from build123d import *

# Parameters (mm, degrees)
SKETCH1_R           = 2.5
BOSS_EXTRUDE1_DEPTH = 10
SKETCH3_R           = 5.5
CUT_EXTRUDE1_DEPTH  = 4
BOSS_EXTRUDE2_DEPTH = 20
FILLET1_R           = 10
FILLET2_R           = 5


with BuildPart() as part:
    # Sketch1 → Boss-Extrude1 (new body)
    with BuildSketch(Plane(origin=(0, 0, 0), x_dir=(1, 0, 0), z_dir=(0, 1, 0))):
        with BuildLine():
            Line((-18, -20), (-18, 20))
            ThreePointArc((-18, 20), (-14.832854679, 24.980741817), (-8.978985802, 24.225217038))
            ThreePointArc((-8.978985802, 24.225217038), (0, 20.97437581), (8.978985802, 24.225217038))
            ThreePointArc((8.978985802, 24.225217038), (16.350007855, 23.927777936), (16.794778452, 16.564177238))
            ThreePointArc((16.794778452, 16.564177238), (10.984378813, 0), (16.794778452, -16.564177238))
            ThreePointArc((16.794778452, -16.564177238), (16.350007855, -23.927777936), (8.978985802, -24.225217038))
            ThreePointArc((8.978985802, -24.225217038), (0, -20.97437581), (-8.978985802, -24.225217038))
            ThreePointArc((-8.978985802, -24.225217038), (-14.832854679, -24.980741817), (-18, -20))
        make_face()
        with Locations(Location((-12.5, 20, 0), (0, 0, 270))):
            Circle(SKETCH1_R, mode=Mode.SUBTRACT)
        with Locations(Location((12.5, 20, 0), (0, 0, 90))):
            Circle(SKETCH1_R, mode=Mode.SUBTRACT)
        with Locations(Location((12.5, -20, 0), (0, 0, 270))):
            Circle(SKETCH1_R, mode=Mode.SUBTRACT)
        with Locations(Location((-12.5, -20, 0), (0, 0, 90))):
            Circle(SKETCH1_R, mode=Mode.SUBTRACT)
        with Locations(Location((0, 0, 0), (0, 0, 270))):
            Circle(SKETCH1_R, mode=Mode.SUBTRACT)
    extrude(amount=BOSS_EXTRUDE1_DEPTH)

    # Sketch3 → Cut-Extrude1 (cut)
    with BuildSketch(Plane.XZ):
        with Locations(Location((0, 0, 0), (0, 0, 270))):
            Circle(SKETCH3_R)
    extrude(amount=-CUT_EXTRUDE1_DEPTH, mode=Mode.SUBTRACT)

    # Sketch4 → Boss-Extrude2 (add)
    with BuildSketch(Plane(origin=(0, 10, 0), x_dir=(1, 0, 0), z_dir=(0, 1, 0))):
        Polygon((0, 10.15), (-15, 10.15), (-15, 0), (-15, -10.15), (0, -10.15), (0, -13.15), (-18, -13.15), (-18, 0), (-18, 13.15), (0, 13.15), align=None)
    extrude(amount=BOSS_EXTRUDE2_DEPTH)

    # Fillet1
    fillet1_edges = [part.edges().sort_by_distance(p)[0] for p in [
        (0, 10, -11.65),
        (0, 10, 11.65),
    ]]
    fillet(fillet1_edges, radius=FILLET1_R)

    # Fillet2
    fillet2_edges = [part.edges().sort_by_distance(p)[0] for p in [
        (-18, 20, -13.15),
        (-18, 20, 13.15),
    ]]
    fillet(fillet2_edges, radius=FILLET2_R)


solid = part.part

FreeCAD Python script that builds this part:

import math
import FreeCAD as App
import Part
import Sketcher
Q = App.Units.Quantity


def edges_at(feature, points):
    """Names of the edges that pass closest to the given points."""
    edges = feature.Shape.Edges
    near = lambda p: min(range(len(edges)), key=lambda i: edges[i].distToShape(Part.Vertex(*p))[0])
    return sorted({f"Edge{near(p) + 1}" for p in points})


def add_polygon(sketch, points):
    """Adds a closed chain of lines whose ends are joined by coincident constraints."""
    first, n = sketch.GeometryCount, len(points)
    for a, b in zip(points, points[1:] + points[:1]):
        sketch.addGeometry(Part.LineSegment(App.Vector(*a, 0), App.Vector(*b, 0)), False)
    for i in range(n):
        sketch.addConstraint(Sketcher.Constraint("Coincident", first + i, 2, first + (i + 1) % n, 1))

doc = App.newDocument("Part")
body = doc.addObject("PartDesign::Body", "Body")

sketch1 = body.newObject("Sketcher::SketchObject", "Sketch")
sketch1.AttachmentSupport = (doc.getObject("XZ_Plane"), [""])
sketch1.MapMode = "FlatFace"
sketch1.addGeometry([
    Part.LineSegment(App.Vector(-18, -20, 0), App.Vector(-18, 20, 0)),
    Part.ArcOfCircle(Part.Circle(App.Vector(-12.5, 20, 0), App.Vector(0, 0, 1), 5.5), math.radians(50), math.radians(180)),
    Part.ArcOfCircle(Part.Circle(App.Vector(0, 35, 0), App.Vector(0, 0, 1), 14), math.radians(-130), math.radians(-50)),
    Part.ArcOfCircle(Part.Circle(App.Vector(12.5, 20, 0), App.Vector(0, 0, 1), 5.5), math.radians(-39), math.radians(130)),
    Part.ArcOfCircle(Part.Circle(App.Vector(37.5, 0, 0), App.Vector(0, 0, 1), 26.5), math.radians(141), math.radians(219)),
    Part.ArcOfCircle(Part.Circle(App.Vector(12.5, -20, 0), App.Vector(0, 0, 1), 5.5), math.radians(-130), math.radians(39)),
    Part.ArcOfCircle(Part.Circle(App.Vector(0, -35, 0), App.Vector(0, 0, 1), 14), math.radians(50), math.radians(130)),
    Part.ArcOfCircle(Part.Circle(App.Vector(-12.5, -20, 0), App.Vector(0, 0, 1), 5.5), math.radians(180), math.radians(310)),
    Part.Circle(App.Vector(12.5, 20, 0), App.Vector(0, 0, 1), 2.5),
    Part.Circle(App.Vector(-12.5, 20, 0), App.Vector(0, 0, 1), 2.5),
    Part.Circle(App.Vector(12.5, -20, 0), App.Vector(0, 0, 1), 2.5),
    Part.Circle(App.Vector(0, 0, 0), App.Vector(0, 0, 1), 2.5),
    Part.Circle(App.Vector(-12.5, -20, 0), App.Vector(0, 0, 1), 2.5),
], False)
sketch1.addConstraint([
    Sketcher.Constraint("Tangent", 0, 2, 1, 2),
    Sketcher.Constraint("Tangent", 1, 1, 2, 1),
    Sketcher.Constraint("Tangent", 2, 2, 3, 2),
    Sketcher.Constraint("Tangent", 3, 1, 4, 1),
    Sketcher.Constraint("Tangent", 4, 2, 5, 2),
    Sketcher.Constraint("Tangent", 5, 1, 6, 1),
    Sketcher.Constraint("Tangent", 6, 2, 7, 2),
    Sketcher.Constraint("Tangent", 7, 1, 0, 1),
    Sketcher.Constraint("Vertical", 0),
    Sketcher.Constraint("Coincident", 11, 3, -1, 1),
    Sketcher.Constraint("Coincident", 8, 3, 3, 3),
    Sketcher.Constraint("Coincident", 9, 3, 1, 3),
    Sketcher.Constraint("Coincident", 10, 3, 5, 3),
    Sketcher.Constraint("Coincident", 12, 3, 7, 3),
    Sketcher.Constraint("Equal", 1, 3),
    Sketcher.Constraint("Equal", 3, 5),
    Sketcher.Constraint("Equal", 2, 6),
    Sketcher.Constraint("Equal", 5, 7),
    Sketcher.Constraint("Equal", 8, 9),
    Sketcher.Constraint("Equal", 9, 10),
    Sketcher.Constraint("Equal", 10, 11),
    Sketcher.Constraint("Equal", 11, 12),
    Sketcher.Constraint("Symmetric", 1, 3, 5, 3, -1, 1),
    Sketcher.Constraint("Symmetric", 3, 3, 7, 3, -1, 1),
    Sketcher.Constraint("PointOnObject", 2, 3, -2),
    Sketcher.Constraint("Diameter", 8, Q("5 mm")),
    Sketcher.Constraint("Radius", 1, Q("5.5 mm")),
    Sketcher.Constraint("DistanceY", 0, 1, 0, 2, Q("40 mm")),
    Sketcher.Constraint("DistanceY", -1, 1, 2, 3, Q("35 mm")),
    Sketcher.Constraint("DistanceX", 0, 2, -1, 1, Q("18 mm")),
    Sketcher.Constraint("DistanceX", 3, 3, 4, 3, Q("25 mm")),
])
pad1 = body.newObject("PartDesign::Pad", "Pad")
pad1.Profile = sketch1
pad1.Length = 10
pad1.Reversed = True

sketch2 = body.newObject("Sketcher::SketchObject", "Sketch001")
sketch2.AttachmentSupport = (doc.getObject("XZ_Plane"), [""])
sketch2.MapMode = "FlatFace"
sketch2.addGeometry(Part.Circle(App.Vector(0, 0, 0), App.Vector(0, 0, 1), 6), False)
sketch2.addConstraint([
    Sketcher.Constraint("Coincident", 0, 3, -1, 1),
    Sketcher.Constraint("Diameter", 0, Q("11 mm")),
])
pocket1 = body.newObject("PartDesign::Pocket", "Pocket")
pocket1.Profile = sketch2
pocket1.Length = 4

sketch3 = body.newObject("Sketcher::SketchObject", "Sketch002")
sketch3.AttachmentSupport = (doc.getObject("XZ_Plane"), [""])
sketch3.MapMode = "FlatFace"
sketch3.AttachmentOffset = App.Placement(App.Vector(0, 0, -10), App.Rotation())
add_polygon(sketch3, [(-15, -10.2), (0, -10.2), (0, -13.2), (-18, -13.2), (-18, 13.2), (0, 13.2), (0, 10.2), (-15, 10.2)])
sketch3.addConstraint([
    Sketcher.Constraint("Horizontal", 0),
    Sketcher.Constraint("Vertical", 1),
    Sketcher.Constraint("Horizontal", 2),
    Sketcher.Constraint("Vertical", 3),
    Sketcher.Constraint("Horizontal", 4),
    Sketcher.Constraint("Vertical", 5),
    Sketcher.Constraint("Horizontal", 6),
    Sketcher.Constraint("Vertical", 7),
    Sketcher.Constraint("Symmetric", 1, 2, 4, 2, -1, 1),
    Sketcher.Constraint("Symmetric", 0, 2, 5, 2, -1),
    Sketcher.Constraint("DistanceX", 0, 1, 0, 2, Q("15 mm")),
    Sketcher.Constraint("DistanceX", 2, 2, 2, 1, Q("18 mm")),
    Sketcher.Constraint("DistanceY", 1, 2, 1, 1, Q("3 mm")),
    Sketcher.Constraint("DistanceY", 3, 1, 3, 2, Q("26.3 mm")),
])
pad2 = body.newObject("PartDesign::Pad", "Pad001")
pad2.Profile = sketch3
pad2.Length = 20
pad2.Reversed = True
doc.recompute()

fillet = body.newObject("PartDesign::Fillet", "Fillet")
fillet.Base = (pad2, edges_at(pad2, [(0, 10, -11.65), (0, 10, 11.65)]))
fillet.Radius = 10
doc.recompute()

fillet2 = body.newObject("PartDesign::Fillet", "Fillet001")
fillet2.Base = (fillet, edges_at(fillet, [(-18, 20, -13.15), (-18, 20, 13.15)]))
fillet2.Radius = 5

doc.recompute()
